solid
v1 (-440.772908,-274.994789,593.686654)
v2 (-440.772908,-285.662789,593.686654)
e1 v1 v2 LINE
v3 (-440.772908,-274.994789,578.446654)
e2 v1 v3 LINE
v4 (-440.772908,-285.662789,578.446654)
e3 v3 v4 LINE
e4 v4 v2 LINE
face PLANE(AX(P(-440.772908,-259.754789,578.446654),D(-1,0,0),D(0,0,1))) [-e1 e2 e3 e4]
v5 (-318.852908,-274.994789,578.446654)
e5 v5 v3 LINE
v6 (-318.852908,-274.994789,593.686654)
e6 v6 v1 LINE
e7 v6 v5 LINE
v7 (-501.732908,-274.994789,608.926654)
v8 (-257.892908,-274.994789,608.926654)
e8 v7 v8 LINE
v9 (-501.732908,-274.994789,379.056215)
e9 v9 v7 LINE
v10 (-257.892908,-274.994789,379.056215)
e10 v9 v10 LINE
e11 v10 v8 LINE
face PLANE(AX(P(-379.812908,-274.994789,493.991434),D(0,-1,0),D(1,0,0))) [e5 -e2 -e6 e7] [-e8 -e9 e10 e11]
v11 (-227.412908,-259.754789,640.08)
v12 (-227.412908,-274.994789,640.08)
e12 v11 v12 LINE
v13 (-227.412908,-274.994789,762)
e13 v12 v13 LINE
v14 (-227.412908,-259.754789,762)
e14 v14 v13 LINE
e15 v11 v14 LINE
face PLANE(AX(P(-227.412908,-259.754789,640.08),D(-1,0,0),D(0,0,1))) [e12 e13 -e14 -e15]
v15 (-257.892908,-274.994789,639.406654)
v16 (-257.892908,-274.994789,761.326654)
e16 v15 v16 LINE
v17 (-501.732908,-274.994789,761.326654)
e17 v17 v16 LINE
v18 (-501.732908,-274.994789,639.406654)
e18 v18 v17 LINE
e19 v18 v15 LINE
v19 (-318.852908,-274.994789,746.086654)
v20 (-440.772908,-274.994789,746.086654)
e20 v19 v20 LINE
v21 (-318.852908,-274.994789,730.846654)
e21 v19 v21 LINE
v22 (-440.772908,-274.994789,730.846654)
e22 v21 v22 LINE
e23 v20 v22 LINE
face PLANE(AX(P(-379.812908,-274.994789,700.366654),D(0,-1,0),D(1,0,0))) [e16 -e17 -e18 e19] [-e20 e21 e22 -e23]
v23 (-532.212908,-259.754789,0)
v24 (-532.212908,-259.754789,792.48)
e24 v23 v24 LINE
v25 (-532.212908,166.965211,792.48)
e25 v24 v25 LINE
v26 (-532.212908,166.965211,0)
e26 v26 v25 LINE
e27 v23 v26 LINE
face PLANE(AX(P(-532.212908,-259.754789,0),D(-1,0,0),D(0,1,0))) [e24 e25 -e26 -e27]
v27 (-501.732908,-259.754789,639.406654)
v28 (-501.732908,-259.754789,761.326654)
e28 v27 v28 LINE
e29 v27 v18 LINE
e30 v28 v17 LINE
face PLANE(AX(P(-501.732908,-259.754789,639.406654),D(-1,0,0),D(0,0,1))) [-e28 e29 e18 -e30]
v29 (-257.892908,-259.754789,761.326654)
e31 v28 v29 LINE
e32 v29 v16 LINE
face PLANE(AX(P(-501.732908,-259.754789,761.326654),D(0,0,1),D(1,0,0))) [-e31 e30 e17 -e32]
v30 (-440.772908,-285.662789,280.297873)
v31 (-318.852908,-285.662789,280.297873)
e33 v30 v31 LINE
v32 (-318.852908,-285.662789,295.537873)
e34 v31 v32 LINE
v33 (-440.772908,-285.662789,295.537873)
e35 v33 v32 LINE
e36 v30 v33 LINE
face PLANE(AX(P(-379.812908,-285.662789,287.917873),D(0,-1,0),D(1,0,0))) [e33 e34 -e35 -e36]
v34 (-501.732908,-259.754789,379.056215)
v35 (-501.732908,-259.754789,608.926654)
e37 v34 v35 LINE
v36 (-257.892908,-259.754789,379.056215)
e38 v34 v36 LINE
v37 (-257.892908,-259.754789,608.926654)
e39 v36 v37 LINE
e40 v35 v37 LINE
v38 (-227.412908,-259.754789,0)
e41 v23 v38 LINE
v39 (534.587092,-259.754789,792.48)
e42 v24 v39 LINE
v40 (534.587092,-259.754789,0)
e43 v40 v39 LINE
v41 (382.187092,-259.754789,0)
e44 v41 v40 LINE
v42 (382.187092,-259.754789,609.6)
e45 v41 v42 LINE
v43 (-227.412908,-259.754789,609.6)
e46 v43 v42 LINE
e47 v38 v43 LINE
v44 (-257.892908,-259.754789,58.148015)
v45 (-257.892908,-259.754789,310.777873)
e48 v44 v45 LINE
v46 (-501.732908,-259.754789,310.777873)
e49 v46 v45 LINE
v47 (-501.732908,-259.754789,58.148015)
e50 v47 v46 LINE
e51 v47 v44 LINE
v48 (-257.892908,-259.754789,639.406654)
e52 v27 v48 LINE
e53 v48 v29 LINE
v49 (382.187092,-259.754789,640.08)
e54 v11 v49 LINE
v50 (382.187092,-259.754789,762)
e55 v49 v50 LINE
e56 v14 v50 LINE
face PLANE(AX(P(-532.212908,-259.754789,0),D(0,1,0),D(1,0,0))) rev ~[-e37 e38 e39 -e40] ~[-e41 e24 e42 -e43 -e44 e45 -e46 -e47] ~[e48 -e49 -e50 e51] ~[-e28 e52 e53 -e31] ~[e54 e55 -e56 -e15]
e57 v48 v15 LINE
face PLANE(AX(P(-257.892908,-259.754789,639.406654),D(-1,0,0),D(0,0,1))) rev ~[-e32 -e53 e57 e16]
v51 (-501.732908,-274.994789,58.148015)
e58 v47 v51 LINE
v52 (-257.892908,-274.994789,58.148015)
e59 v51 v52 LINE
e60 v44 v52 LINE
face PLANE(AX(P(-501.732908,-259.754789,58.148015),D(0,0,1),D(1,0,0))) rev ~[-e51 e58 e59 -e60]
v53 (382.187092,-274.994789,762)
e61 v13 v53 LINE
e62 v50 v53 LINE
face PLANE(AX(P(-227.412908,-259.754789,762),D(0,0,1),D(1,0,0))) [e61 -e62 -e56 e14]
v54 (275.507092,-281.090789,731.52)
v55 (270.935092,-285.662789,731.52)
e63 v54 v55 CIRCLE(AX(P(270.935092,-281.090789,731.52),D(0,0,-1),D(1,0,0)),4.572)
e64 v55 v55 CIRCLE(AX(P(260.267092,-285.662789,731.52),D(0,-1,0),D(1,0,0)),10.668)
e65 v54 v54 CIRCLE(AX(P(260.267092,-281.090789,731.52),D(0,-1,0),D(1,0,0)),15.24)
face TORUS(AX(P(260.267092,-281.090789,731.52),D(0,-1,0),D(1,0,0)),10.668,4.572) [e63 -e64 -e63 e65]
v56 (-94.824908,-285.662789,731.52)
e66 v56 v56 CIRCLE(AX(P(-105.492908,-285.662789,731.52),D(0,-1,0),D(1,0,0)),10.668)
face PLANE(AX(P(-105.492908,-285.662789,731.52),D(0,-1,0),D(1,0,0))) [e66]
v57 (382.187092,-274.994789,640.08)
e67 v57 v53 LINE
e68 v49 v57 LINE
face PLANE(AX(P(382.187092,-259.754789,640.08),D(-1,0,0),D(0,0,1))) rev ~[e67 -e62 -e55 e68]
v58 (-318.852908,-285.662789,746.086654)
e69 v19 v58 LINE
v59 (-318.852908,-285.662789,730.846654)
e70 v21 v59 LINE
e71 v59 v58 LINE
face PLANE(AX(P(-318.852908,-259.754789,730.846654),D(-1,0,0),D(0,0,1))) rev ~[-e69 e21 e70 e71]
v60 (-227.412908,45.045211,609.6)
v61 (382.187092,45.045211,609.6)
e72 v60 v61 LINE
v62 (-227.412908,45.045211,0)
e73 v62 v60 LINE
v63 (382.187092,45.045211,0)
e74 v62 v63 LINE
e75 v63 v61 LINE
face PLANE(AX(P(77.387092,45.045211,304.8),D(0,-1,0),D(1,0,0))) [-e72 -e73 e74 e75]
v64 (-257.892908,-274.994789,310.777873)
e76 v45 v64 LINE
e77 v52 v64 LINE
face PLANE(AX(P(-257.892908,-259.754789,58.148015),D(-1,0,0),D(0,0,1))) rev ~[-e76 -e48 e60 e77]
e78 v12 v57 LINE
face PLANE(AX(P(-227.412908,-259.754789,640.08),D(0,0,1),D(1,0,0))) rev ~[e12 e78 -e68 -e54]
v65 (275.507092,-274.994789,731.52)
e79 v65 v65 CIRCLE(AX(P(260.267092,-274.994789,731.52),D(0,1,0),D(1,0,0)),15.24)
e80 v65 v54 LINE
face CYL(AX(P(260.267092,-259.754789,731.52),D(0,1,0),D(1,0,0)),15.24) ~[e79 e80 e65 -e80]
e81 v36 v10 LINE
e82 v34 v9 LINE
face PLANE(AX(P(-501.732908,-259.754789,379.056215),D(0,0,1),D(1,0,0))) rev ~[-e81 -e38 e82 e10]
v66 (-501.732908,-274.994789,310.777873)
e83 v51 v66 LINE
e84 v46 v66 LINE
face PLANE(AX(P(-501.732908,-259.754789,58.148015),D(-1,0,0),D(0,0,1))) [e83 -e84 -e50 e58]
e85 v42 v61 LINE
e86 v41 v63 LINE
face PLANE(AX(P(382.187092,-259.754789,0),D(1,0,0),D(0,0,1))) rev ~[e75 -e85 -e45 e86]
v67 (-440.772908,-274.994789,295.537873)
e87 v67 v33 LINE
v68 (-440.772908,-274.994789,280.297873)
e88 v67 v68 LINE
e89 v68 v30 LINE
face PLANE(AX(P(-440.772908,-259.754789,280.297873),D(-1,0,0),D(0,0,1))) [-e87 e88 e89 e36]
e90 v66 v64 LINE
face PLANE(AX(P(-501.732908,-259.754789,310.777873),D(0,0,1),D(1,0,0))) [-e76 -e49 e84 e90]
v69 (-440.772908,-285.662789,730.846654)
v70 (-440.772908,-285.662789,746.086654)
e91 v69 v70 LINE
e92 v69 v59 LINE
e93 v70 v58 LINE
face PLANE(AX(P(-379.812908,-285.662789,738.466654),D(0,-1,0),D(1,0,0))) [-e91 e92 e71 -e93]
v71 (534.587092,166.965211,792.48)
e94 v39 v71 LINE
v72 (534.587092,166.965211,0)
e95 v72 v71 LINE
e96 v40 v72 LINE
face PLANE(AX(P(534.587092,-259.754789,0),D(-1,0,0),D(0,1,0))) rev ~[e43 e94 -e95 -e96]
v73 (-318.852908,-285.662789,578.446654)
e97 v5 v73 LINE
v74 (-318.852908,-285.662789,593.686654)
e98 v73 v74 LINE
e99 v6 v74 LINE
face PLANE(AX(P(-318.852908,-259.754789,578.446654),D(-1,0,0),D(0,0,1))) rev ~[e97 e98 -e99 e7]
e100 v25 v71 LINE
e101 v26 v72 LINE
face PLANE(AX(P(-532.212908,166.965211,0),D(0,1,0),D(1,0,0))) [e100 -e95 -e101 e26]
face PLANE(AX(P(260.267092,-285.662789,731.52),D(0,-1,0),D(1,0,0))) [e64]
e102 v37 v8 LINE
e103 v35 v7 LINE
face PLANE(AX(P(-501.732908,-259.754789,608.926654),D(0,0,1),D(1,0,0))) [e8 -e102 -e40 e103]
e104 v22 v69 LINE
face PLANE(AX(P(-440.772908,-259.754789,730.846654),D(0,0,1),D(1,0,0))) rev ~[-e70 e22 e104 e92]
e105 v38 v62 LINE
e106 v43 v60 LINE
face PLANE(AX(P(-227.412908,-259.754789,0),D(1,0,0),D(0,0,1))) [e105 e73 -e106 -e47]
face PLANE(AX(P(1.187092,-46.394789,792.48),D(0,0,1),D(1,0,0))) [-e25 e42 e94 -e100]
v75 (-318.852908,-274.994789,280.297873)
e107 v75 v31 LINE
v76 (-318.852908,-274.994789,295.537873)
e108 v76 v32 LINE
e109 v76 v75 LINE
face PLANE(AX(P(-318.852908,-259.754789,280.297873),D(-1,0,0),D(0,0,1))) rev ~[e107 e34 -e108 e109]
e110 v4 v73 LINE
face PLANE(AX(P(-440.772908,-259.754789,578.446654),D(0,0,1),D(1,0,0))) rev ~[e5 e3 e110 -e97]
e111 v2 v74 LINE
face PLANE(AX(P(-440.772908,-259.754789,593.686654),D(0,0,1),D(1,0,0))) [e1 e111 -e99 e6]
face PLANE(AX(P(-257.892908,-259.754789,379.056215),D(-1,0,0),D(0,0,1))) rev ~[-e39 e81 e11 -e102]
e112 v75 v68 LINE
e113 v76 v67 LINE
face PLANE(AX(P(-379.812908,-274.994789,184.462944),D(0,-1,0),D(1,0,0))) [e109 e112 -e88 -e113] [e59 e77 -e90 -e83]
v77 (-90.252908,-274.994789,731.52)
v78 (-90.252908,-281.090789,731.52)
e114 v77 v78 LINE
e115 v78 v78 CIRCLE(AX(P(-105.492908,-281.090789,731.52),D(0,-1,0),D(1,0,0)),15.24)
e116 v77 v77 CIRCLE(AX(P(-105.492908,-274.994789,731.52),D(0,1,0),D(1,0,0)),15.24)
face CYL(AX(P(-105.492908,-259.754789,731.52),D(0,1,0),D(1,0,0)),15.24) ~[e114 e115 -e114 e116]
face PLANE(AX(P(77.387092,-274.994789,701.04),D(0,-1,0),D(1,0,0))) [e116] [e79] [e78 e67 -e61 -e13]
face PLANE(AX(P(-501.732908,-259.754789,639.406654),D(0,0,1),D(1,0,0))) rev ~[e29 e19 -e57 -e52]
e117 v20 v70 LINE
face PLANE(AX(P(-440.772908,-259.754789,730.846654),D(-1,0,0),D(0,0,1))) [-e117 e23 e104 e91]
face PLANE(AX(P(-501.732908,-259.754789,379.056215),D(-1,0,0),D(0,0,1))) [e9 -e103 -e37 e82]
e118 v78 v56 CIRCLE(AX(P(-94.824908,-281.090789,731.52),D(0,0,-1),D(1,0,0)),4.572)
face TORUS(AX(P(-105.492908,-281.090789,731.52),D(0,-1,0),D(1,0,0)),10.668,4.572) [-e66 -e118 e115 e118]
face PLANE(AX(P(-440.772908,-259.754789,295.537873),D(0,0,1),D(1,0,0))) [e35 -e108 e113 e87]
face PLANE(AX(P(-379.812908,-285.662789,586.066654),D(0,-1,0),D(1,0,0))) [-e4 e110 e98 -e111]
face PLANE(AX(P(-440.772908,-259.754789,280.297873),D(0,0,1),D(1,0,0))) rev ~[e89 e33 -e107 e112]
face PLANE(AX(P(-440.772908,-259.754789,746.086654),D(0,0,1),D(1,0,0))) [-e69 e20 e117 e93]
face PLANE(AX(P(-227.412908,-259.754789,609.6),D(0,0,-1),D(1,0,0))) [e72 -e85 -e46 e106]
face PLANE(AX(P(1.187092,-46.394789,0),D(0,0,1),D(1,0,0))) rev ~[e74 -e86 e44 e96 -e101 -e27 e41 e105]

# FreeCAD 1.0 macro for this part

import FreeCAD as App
import Part
import Sketcher
Q = App.Units.Quantity


def edges_at(feature, points):
    """Names of the edges that pass closest to the given points."""
    edges = feature.Shape.Edges
    near = lambda p: min(range(len(edges)), key=lambda i: edges[i].distToShape(Part.Vertex(*p))[0])
    return sorted({f"Edge{near(p) + 1}" for p in points})


def add_polygon(sketch, points):
    """Adds a closed chain of lines whose ends are joined by coincident constraints."""
    first, n = sketch.GeometryCount, len(points)
    for a, b in zip(points, points[1:] + points[:1]):
        sketch.addGeometry(Part.LineSegment(App.Vector(*a, 0), App.Vector(*b, 0)), False)
    for i in range(n):
        sketch.addConstraint(Sketcher.Constraint("Coincident", first + i, 2, first + (i + 1) % n, 1))

doc = App.newDocument("Part")
params = doc.addObject("Spreadsheet::Sheet", "Params")
for row, (alias, value) in enumerate([
    ("sketch1_width", "42 in"),
    ("sketch1_height", "16.8 in"),
    ("pad1_length", "31.2 in"),
    ("sketch2_width", "24 in"),
    ("pocket1_length", "12 in"),
    ("sketch3_width", "24 in"),
    ("sketch3_width2", "9.6 in"),
    ("sketch3_height", "4.8 in"),
    ("pad2_length", "0.6 in"),
    ("sketch4_diameter", "1.2 in"),
    ("sketch4_width", "4.8 in"),
    ("sketch4_height", "0.6 in"),
    ("pad3_length", "1.02 in"),
    ("fillet_radius", "0.18 in"),
], start=1):
    params.set(f"A{row}", alias)
    params.set(f"B{row}", "=" + value)
    params.setAlias(f"B{row}", alias)

body = doc.addObject("PartDesign::Body", "Body")

# Sketch on XY plane
sketch1 = body.newObject("Sketcher::SketchObject", "Sketch")
sketch1.AttachmentSupport = (doc.getObject("XY_Plane"), [""])
sketch1.MapMode = "FlatFace"
add_polygon(sketch1, [(-532.212908, 166.965211), (-532.212908, -259.754789), (534.587092, -259.754789), (534.587092, 166.965211)])  # lines 0-3
sketch1.addConstraint([
    Sketcher.Constraint("Vertical", 0),
    Sketcher.Constraint("Horizontal", 1),
    Sketcher.Constraint("Vertical", 2),
    Sketcher.Constraint("Horizontal", 3),
    Sketcher.Constraint("DistanceX", 1, 1, 1, 2, Q("42 in")),
    Sketcher.Constraint("DistanceY", 0, 2, 0, 1, Q("16.8 in")),
    Sketcher.Constraint("DistanceX", 0, 2, -1, 1, 532.212908),
    Sketcher.Constraint("DistanceY", 0, 2, -1, 1, 259.754789),
])
sketch1.setExpression("Constraints[8]", "Params.sketch1_width")
sketch1.setExpression("Constraints[9]", "Params.sketch1_height")
pad1 = body.newObject("PartDesign::Pad", "Pad")
pad1.Profile = sketch1
pad1.setExpression("Length", "Params.pad1_length")

# Sketch on XZ plane
sketch2 = body.newObject("Sketcher::SketchObject", "Sketch001")
sketch2.AttachmentSupport = (doc.getObject("XZ_Plane"), [""])
sketch2.MapMode = "FlatFace"
sketch2.AttachmentOffset = App.Placement(App.Vector(0, 0, 259.754789), App.Rotation())
add_polygon(sketch2, [(-227.412908, 609.6), (-227.412908, 0), (382.187092, 0), (382.187092, 609.6)])  # lines 0-3
sketch2.addConstraint([
    Sketcher.Constraint("Vertical", 0),
    Sketcher.Constraint("Horizontal", 1),
    Sketcher.Constraint("Vertical", 2),
    Sketcher.Constraint("Horizontal", 3),
    Sketcher.Constraint("PointOnObject", 0, 2, -1),
    Sketcher.Constraint("Equal", 3, 0),
    Sketcher.Constraint("DistanceX", 1, 1, 1, 2, Q("24 in")),
    Sketcher.Constraint("DistanceX", -1, 1, 1, 2, 382.187092),
])
sketch2.setExpression("Constraints[10]", "Params.sketch2_width")
pocket1 = body.newObject("PartDesign::Pocket", "Pocket")
pocket1.Profile = sketch2
pocket1.setExpression("Length", "Params.pocket1_length")

# Sketch on XZ plane
sketch3 = body.newObject("Sketcher::SketchObject", "Sketch002")
sketch3.AttachmentSupport = (doc.getObject("XZ_Plane"), [""])
sketch3.MapMode = "FlatFace"
sketch3.AttachmentOffset = App.Placement(App.Vector(0, 0, 259.754789), App.Rotation())
add_polygon(sketch3, [(-227.412908, 762), (-227.412908, 640.08), (382.187092, 640.08), (382.187092, 762)])  # lines 0-3
add_polygon(sketch3, [(-501.732908, 761.326654), (-501.732908, 639.406654), (-257.892908, 639.406654), (-257.892908, 761.326654)])  # lines 4-7
add_polygon(sketch3, [(-501.732908, 608.926654), (-501.732908, 379.056215), (-257.892908, 379.056215), (-257.892908, 608.926654)])  # lines 8-11
add_polygon(sketch3, [(-501.732908, 310.777873), (-501.732908, 58.148015), (-257.892908, 58.148015), (-257.892908, 310.777873)])  # lines 12-15
sketch3.addConstraint([
    Sketcher.Constraint("Vertical", 0),
    Sketcher.Constraint("Horizontal", 1),
    Sketcher.Constraint("Vertical", 2),
    Sketcher.Constraint("Horizontal", 3),
    Sketcher.Constraint("Vertical", 4),
    Sketcher.Constraint("Horizontal", 5),
    Sketcher.Constraint("Vertical", 6),
    Sketcher.Constraint("Horizontal", 7),
    Sketcher.Constraint("Vertical", 8),
    Sketcher.Constraint("Horizontal", 9),
    Sketcher.Constraint("Vertical", 10),
    Sketcher.Constraint("Horizontal", 11),
    Sketcher.Constraint("Vertical", 12),
    Sketcher.Constraint("Horizontal", 13),
    Sketcher.Constraint("Vertical", 14),
    Sketcher.Constraint("Horizontal", 15),
    Sketcher.Constraint("Vertical", 7, 2, 8, 2),
    Sketcher.Constraint("Vertical", 6, 2, 9, 2),
    Sketcher.Constraint("Vertical", 11, 2, 12, 2),
    Sketcher.Constraint("Vertical", 10, 2, 13, 2),
    Sketcher.Constraint("Equal", 2, 4),
    Sketcher.Constraint("DistanceX", 1, 1, 1, 2, Q("24 in")),
    Sketcher.Constraint("DistanceX", 5, 1, 5, 2, Q("9.6 in")),
    Sketcher.Constraint("DistanceY", 0, 2, 0, 1, Q("4.8 in")),
    Sketcher.Constraint("DistanceY", -1, 1, 2, 2, Q("30 in")),
    Sketcher.Constraint("DistanceY", 10, 2, 6, 2, Q("6 in")),
    Sketcher.Constraint("DistanceX", 4, 2, 0, 2, Q("10.8 in")),
    Sketcher.Constraint("DistanceY", 8, 2, 8, 1, 229.870439),
    Sketcher.Constraint("DistanceY", 12, 2, 12, 1, 252.629858),
    Sketcher.Constraint("DistanceY", 12, 2, 8, 2, 320.9082),
    Sketcher.Constraint("DistanceX", -1, 1, 1, 2, 382.187092),
    Sketcher.Constraint("DistanceY", -1, 1, 4, 2, 639.406654),
])
sketch3.setExpression("Constraints[37]", "Params.sketch3_width")
sketch3.setExpression("Constraints[38]", "Params.sketch3_width2")
sketch3.setExpression("Constraints[39]", "Params.sketch3_height")
pad2 = body.newObject("PartDesign::Pad", "Pad001")
pad2.Profile = sketch3
pad2.setExpression("Length", "Params.pad2_length")

# Sketch on XZ plane
sketch4 = body.newObject("Sketcher::SketchObject", "Sketch003")
sketch4.AttachmentSupport = (doc.getObject("XZ_Plane"), [""])
sketch4.MapMode = "FlatFace"
sketch4.AttachmentOffset = App.Placement(App.Vector(0, 0, 259.754789), App.Rotation())
add_polygon(sketch4, [(-440.772908, 746.086654), (-440.772908, 730.846654), (-318.852908, 730.846654), (-318.852908, 746.086654)])  # lines 0-3
add_polygon(sketch4, [(-440.772908, 593.686654), (-440.772908, 578.446654), (-318.852908, 578.446654), (-318.852908, 593.686654)])  # lines 4-7
add_polygon(sketch4, [(-440.772908, 295.537873), (-440.772908, 280.297873), (-318.852908, 280.297873), (-318.852908, 295.537873)])  # lines 8-11
sketch4.addGeometry(Part.Circle(App.Vector(-105.492908, 731.52, 0), App.Vector(0, 0, 1), 15.24), False)  # 12
sketch4.addGeometry(Part.Circle(App.Vector(260.267092, 731.52, 0), App.Vector(0, 0, 1), 15.24), False)  # 13
sketch4.addConstraint([
    Sketcher.Constraint("Vertical", 0),
    Sketcher.Constraint("Horizontal", 1),
    Sketcher.Constraint("Vertical", 2),
    Sketcher.Constraint("Horizontal", 3),
    Sketcher.Constraint("Vertical", 4),
    Sketcher.Constraint("Horizontal", 5),
    Sketcher.Constraint("Vertical", 6),
    Sketcher.Constraint("Horizontal", 7),
    Sketcher.Constraint("Vertical", 8),
    Sketcher.Constraint("Horizontal", 9),
    Sketcher.Constraint("Vertical", 10),
    Sketcher.Constraint("Horizontal", 11),
    Sketcher.Constraint("Equal", 12, 13),
    Sketcher.Constraint("Horizontal", 12, 3, 13, 3),
    Sketcher.Constraint("Vertical", 3, 2, 4, 2),
    Sketcher.Constraint("Vertical", 2, 2, 5, 2),
    Sketcher.Constraint("Vertical", 7, 2, 8, 2),
    Sketcher.Constraint("Vertical", 6, 2, 9, 2),
    Sketcher.Constraint("Equal", 2, 4),
    Sketcher.Constraint("Equal", 6, 8),
    Sketcher.Constraint("Diameter", 12, Q("1.2 in")),
    Sketcher.Constraint("DistanceX", 1, 1, 1, 2, Q("4.8 in")),
    Sketcher.Constraint("DistanceY", 0, 2, 0, 1, Q("0.6 in")),
    Sketcher.Constraint("DistanceY", 4, 2, 0, 2, Q("6 in")),
    Sketcher.Constraint("DistanceY", -1, 1, 12, 3, Q("28.8 in")),
    Sketcher.Constraint("DistanceX", 12, 3, 13, 3, Q("14.4 in")),
    Sketcher.Constraint("DistanceX", 0, 2, 12, 3, Q("13.2 in")),
    Sketcher.Constraint("DistanceX", 12, 3, -1, 1, 105.492908),
    Sketcher.Constraint("DistanceY", 8, 2, 4, 2, 298.148781),
    Sketcher.Constraint("DistanceY", -1, 1, 0, 2, 730.846654),
])
sketch4.setExpression("Constraints[32]", "Params.sketch4_diameter")
sketch4.setExpression("Constraints[33]", "Params.sketch4_width")
sketch4.setExpression("Constraints[34]", "Params.sketch4_height")
pad3 = body.newObject("PartDesign::Pad", "Pad002")
pad3.Profile = sketch4
pad3.setExpression("Length", "Params.pad3_length")
doc.recompute()

fillet = body.newObject("PartDesign::Fillet", "Fillet")
fillet.Base = (pad3, edges_at(pad3, [(-120.733, -285.663, 731.52), (245.027, -285.663, 731.52)]))
fillet.setExpression("Radius", "Params.fillet_radius")

doc.recompute()
